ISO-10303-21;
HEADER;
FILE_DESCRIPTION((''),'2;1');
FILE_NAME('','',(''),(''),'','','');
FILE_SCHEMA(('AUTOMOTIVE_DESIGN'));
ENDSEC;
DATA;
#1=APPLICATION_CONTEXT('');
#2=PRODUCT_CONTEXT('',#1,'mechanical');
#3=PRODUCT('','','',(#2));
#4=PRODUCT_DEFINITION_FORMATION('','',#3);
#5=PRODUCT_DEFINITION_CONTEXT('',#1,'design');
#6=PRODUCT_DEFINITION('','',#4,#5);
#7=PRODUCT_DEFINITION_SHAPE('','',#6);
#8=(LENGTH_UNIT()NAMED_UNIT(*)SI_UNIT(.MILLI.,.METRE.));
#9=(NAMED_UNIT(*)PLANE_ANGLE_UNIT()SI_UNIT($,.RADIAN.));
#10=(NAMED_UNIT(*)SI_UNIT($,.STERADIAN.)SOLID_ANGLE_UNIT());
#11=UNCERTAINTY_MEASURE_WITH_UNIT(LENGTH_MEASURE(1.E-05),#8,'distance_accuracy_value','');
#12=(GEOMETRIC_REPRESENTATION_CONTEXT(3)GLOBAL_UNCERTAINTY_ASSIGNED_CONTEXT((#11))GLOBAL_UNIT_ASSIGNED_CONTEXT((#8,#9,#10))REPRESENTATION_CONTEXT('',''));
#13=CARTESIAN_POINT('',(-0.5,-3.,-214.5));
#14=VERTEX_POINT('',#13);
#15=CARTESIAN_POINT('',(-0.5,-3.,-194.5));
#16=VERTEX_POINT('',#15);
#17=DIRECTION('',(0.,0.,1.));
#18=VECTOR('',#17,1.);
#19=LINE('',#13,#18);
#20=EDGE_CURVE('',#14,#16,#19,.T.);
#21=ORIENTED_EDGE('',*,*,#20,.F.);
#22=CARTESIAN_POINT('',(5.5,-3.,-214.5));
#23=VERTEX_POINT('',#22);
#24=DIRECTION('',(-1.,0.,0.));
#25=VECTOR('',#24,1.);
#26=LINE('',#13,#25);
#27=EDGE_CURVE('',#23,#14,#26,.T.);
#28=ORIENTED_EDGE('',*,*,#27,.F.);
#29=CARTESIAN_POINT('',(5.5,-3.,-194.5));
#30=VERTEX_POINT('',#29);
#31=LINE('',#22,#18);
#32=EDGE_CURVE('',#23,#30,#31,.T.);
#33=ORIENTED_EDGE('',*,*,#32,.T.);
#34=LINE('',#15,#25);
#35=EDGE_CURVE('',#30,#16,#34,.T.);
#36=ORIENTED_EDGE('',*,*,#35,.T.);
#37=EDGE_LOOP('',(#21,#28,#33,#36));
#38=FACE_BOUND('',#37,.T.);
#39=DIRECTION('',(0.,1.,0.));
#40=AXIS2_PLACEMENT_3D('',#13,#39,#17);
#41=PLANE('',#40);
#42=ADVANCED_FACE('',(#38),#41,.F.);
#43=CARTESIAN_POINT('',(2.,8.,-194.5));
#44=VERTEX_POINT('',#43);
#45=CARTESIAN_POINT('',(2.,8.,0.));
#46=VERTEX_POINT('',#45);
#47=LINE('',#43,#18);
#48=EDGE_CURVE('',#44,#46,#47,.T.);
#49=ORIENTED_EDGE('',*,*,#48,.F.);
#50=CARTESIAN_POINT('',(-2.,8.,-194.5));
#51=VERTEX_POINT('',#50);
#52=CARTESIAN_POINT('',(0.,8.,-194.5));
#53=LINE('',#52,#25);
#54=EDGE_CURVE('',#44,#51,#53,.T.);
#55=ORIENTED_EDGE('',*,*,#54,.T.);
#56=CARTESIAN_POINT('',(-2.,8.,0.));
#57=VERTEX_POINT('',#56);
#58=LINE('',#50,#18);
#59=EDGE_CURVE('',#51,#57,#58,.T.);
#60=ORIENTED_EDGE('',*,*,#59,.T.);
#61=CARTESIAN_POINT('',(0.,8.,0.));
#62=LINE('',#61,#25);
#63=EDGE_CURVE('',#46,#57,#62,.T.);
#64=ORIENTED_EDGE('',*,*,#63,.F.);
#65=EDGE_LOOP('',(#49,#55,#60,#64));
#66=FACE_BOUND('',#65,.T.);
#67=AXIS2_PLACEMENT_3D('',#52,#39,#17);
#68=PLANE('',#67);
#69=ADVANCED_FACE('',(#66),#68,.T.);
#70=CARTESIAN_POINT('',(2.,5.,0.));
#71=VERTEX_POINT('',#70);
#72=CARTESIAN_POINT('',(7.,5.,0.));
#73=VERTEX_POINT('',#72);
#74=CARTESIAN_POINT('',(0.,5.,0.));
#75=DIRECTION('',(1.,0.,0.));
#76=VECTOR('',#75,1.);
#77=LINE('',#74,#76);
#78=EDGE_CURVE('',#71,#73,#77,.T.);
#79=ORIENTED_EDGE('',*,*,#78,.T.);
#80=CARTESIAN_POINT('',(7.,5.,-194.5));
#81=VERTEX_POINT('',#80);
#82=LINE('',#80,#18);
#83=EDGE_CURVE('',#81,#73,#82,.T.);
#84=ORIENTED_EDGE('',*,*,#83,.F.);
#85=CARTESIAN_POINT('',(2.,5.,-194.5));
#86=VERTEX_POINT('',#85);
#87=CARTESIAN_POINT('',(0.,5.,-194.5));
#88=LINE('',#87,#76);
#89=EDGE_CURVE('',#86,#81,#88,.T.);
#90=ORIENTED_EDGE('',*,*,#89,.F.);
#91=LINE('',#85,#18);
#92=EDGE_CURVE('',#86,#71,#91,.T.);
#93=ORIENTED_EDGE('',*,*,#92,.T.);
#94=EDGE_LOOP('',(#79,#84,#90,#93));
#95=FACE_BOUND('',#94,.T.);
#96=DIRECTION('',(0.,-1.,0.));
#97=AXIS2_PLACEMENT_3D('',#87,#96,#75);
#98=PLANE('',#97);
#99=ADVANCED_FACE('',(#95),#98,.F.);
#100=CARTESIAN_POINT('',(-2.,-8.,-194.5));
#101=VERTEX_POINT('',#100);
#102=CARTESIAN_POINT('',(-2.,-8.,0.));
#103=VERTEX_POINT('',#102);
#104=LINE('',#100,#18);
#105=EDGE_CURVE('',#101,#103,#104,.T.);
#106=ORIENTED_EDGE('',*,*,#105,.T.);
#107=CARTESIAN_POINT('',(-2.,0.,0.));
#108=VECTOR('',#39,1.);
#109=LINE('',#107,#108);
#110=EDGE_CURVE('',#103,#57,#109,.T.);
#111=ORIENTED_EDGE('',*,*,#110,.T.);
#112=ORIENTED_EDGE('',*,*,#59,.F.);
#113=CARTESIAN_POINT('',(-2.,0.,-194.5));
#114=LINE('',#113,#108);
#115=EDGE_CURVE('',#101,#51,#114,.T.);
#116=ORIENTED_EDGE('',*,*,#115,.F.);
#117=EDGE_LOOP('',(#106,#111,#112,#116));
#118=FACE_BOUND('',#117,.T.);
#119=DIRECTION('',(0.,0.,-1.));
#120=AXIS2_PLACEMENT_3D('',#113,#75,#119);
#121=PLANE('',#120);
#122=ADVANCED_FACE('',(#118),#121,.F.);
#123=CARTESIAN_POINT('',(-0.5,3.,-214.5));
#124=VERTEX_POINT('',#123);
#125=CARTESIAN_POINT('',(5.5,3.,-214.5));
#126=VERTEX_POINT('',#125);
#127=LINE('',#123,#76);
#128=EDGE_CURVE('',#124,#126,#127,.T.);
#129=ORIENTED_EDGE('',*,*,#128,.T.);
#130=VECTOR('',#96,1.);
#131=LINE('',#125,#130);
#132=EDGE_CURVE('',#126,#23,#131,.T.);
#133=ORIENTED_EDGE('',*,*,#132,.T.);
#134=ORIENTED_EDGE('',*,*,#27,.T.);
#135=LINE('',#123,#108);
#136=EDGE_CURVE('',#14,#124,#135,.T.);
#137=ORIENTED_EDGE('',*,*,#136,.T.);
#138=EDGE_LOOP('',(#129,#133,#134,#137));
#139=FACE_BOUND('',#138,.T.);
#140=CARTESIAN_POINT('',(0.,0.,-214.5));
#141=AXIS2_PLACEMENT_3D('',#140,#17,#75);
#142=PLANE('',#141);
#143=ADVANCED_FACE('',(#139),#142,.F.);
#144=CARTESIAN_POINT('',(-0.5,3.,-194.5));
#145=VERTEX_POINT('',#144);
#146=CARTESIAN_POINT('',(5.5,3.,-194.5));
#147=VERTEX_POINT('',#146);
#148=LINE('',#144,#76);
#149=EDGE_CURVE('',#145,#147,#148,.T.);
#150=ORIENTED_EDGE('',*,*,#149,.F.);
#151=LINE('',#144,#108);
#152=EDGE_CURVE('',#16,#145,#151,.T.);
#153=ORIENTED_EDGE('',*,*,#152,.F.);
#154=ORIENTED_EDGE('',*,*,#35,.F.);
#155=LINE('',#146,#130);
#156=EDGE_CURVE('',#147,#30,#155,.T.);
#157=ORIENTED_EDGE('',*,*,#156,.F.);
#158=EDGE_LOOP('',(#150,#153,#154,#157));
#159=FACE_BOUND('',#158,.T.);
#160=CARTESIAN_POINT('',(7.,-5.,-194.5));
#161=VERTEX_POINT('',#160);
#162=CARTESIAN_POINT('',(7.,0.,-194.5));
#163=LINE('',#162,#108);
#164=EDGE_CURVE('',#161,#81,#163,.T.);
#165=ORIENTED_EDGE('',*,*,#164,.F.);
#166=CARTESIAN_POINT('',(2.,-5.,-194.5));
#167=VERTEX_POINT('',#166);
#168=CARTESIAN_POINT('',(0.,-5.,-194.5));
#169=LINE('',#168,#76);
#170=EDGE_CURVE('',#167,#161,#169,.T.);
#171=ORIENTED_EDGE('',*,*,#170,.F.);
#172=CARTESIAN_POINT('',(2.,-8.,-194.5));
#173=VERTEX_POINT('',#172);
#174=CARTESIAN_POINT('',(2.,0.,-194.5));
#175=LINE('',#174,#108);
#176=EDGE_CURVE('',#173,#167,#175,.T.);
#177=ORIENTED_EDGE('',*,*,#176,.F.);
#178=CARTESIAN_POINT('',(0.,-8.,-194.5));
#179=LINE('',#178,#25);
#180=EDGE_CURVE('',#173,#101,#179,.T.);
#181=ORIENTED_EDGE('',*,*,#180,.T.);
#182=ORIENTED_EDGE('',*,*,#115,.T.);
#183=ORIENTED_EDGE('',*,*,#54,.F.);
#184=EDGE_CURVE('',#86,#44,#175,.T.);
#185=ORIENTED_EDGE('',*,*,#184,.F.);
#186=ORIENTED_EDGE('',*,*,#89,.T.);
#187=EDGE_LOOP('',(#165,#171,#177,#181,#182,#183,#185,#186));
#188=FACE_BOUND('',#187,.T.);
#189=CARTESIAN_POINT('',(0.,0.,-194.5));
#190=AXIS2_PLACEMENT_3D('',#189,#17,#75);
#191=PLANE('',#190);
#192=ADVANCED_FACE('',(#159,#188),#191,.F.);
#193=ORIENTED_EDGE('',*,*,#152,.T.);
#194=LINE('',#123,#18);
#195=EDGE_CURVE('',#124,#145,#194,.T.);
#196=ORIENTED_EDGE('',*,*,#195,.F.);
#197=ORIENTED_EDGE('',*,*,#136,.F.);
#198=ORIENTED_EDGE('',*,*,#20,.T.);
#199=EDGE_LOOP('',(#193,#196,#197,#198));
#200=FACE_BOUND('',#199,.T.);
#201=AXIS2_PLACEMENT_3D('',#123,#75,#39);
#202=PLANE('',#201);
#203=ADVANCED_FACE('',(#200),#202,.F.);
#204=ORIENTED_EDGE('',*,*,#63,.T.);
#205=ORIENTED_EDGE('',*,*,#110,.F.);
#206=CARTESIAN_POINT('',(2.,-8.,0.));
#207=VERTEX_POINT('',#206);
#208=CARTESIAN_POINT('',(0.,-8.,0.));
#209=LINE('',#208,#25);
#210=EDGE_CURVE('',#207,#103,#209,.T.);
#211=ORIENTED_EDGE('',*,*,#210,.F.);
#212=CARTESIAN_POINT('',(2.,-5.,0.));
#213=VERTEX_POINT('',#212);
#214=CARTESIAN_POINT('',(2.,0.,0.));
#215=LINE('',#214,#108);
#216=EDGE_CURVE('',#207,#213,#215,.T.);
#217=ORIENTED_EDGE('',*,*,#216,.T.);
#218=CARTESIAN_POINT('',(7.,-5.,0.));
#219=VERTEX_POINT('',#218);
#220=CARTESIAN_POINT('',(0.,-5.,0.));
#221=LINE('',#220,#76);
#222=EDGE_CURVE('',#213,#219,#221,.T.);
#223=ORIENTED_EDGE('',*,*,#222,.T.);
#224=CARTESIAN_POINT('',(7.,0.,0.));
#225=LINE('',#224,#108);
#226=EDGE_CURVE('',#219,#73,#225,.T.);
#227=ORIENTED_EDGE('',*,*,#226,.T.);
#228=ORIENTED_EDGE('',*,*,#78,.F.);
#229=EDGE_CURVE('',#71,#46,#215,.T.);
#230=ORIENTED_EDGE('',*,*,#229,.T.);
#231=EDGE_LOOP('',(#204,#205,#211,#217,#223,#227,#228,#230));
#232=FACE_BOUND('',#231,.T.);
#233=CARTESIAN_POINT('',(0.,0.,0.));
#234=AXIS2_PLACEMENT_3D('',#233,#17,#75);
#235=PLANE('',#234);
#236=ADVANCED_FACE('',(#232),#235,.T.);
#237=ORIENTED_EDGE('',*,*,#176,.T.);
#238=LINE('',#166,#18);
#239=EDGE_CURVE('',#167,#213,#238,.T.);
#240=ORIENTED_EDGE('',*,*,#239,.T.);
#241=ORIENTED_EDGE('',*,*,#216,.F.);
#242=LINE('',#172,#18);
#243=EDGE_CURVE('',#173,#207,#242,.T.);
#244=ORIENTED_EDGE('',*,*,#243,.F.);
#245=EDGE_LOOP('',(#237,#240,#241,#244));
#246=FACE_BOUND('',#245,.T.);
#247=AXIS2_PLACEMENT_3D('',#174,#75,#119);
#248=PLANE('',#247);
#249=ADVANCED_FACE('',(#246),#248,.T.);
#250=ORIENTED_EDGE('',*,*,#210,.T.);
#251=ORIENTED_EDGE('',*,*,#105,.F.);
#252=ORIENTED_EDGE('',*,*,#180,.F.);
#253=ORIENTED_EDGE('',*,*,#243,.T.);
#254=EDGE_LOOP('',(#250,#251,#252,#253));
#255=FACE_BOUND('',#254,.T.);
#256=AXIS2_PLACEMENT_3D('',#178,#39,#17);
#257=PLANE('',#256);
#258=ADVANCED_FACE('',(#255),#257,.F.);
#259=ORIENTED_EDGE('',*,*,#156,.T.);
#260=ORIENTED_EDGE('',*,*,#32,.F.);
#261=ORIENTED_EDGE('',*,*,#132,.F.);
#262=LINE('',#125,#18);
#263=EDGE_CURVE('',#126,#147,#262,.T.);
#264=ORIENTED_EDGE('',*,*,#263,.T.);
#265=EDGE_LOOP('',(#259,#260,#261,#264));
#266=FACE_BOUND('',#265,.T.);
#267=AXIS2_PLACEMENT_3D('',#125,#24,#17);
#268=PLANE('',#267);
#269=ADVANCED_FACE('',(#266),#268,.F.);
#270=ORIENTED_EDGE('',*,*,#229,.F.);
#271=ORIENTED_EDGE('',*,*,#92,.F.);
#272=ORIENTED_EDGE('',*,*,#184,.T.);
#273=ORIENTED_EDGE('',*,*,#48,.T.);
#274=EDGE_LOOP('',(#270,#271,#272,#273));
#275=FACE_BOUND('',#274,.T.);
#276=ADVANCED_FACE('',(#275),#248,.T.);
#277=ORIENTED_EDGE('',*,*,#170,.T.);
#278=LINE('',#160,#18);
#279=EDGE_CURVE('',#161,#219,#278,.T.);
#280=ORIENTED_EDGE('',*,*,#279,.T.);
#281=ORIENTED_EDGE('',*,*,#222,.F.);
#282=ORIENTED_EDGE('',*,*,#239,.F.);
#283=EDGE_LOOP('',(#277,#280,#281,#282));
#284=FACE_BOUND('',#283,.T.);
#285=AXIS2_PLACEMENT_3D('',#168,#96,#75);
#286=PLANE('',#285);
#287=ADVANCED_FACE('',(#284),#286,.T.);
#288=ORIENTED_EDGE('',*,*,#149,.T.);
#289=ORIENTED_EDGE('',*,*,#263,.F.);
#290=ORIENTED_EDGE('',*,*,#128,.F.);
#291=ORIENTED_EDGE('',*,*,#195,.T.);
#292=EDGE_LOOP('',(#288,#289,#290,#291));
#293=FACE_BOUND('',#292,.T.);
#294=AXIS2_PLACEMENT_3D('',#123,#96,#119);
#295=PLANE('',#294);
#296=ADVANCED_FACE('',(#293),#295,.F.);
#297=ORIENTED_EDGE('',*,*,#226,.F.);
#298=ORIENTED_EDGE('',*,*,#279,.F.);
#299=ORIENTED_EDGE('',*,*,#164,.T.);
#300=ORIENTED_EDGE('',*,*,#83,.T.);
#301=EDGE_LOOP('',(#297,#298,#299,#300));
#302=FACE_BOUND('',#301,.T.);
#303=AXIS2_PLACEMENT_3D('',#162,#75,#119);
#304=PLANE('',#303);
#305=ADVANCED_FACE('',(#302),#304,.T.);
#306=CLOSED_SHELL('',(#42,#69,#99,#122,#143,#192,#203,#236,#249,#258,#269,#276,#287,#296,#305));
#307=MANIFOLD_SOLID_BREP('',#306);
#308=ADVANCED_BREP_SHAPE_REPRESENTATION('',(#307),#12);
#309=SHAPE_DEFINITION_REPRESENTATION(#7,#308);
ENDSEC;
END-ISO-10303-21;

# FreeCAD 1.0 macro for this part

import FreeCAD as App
import Part
import Sketcher

V = App.Vector
Q = App.Units.Quantity

doc = App.newDocument("Part")
params = doc.addObject("Spreadsheet::Sheet", "Params")
for row, (alias, value) in enumerate([
    ("sketch1_width", "5 mm"),
    ("sketch1_width2", "4 mm"),
    ("sketch1_height", "10 mm"),
    ("sketch1_height2", "3 mm"),
    ("pad1_length", "194.5 mm"),
    ("sketch2_width", "6 mm"),
    ("pad2_length", "20 mm"),
], start=1):
    params.set(f"A{row}", alias)
    params.set(f"B{row}", "=" + value)
    params.setAlias(f"B{row}", alias)

body = doc.addObject("PartDesign::Body", "Body")

sketch1 = body.newObject("Sketcher::SketchObject", "Sketch")
sketch1.AttachmentSupport = (doc.getObject("XY_Plane"), [""])
sketch1.MapMode = "FlatFace"
sketch1.addGeometry(Part.LineSegment(V(2, -5, 0), V(7, -5, 0)), False)
sketch1.addGeometry(Part.LineSegment(V(7, -5, 0), V(7, 5, 0)), False)
sketch1.addGeometry(Part.LineSegment(V(7, 5, 0), V(2, 5, 0)), False)
sketch1.addGeometry(Part.LineSegment(V(2, 5, 0), V(2, 8, 0)), False)
sketch1.addGeometry(Part.LineSegment(V(2, 8, 0), V(-2, 8, 0)), False)
sketch1.addGeometry(Part.LineSegment(V(-2, 8, 0), V(-2, -8, 0)), False)
sketch1.addGeometry(Part.LineSegment(V(-2, -8, 0), V(2, -8, 0)), False)
sketch1.addGeometry(Part.LineSegment(V(2, -8, 0), V(2, -5, 0)), False)
sketch1.addConstraint(Sketcher.Constraint("Coincident", 0, 2, 1, 1))
sketch1.addConstraint(Sketcher.Constraint("Coincident", 1, 2, 2, 1))
sketch1.addConstraint(Sketcher.Constraint("Coincident", 2, 2, 3, 1))
sketch1.addConstraint(Sketcher.Constraint("Coincident", 3, 2, 4, 1))
sketch1.addConstraint(Sketcher.Constraint("Coincident", 4, 2, 5, 1))
sketch1.addConstraint(Sketcher.Constraint("Coincident", 5, 2, 6, 1))
sketch1.addConstraint(Sketcher.Constraint("Coincident", 6, 2, 7, 1))
sketch1.addConstraint(Sketcher.Constraint("Coincident", 7, 2, 0, 1))
sketch1.addConstraint(Sketcher.Constraint("Horizontal", 0))
sketch1.addConstraint(Sketcher.Constraint("Vertical", 1))
sketch1.addConstraint(Sketcher.Constraint("Horizontal", 2))
sketch1.addConstraint(Sketcher.Constraint("Vertical", 3))
sketch1.addConstraint(Sketcher.Constraint("Horizontal", 4))
sketch1.addConstraint(Sketcher.Constraint("Vertical", 5))
sketch1.addConstraint(Sketcher.Constraint("Horizontal", 6))
sketch1.addConstraint(Sketcher.Constraint("Vertical", 7))
sketch1.addConstraint(Sketcher.Constraint("Symmetric", 3, 2, 5, 2, -1, 1))
sketch1.addConstraint(Sketcher.Constraint("Symmetric", 2, 2, 7, 2, -1))
sketch1.addConstraint(Sketcher.Constraint("DistanceX", 0, 1, 0, 2, Q("5 mm")))
sketch1.addConstraint(Sketcher.Constraint("DistanceX", 4, 2, 4, 1, Q("4 mm")))
sketch1.addConstraint(Sketcher.Constraint("DistanceY", 1, 1, 1, 2, Q("10 mm")))
sketch1.addConstraint(Sketcher.Constraint("DistanceY", 3, 1, 3, 2, Q("3 mm")))
sketch1.setExpression("Constraints[18]", "Params.sketch1_width")
sketch1.setExpression("Constraints[19]", "Params.sketch1_width2")
sketch1.setExpression("Constraints[20]", "Params.sketch1_height")
sketch1.setExpression("Constraints[21]", "Params.sketch1_height2")
pad1 = body.newObject("PartDesign::Pad", "Pad")
pad1.Profile = sketch1
pad1.setExpression("Length", "Params.pad1_length")
pad1.Reversed = True

sketch2 = body.newObject("Sketcher::SketchObject", "Sketch001")
sketch2.AttachmentSupport = (doc.getObject("XY_Plane"), [""])
sketch2.MapMode = "FlatFace"
sketch2.AttachmentOffset = App.Placement(V(0, 0, -194.5), App.Rotation())
sketch2.addGeometry(Part.LineSegment(V(-0.5, -3, 0), V(-0.5, 3, 0)), False)
sketch2.addGeometry(Part.LineSegment(V(-0.5, 3, 0), V(5.5, 3, 0)), False)
sketch2.addGeometry(Part.LineSegment(V(5.5, 3, 0), V(5.5, -3, 0)), False)
sketch2.addGeometry(Part.LineSegment(V(5.5, -3, 0), V(-0.5, -3, 0)), False)
sketch2.addConstraint(Sketcher.Constraint("Coincident", 0, 2, 1, 1))
sketch2.addConstraint(Sketcher.Constraint("Coincident", 1, 2, 2, 1))
sketch2.addConstraint(Sketcher.Constraint("Coincident", 2, 2, 3, 1))
sketch2.addConstraint(Sketcher.Constraint("Coincident", 3, 2, 0, 1))
sketch2.addConstraint(Sketcher.Constraint("Vertical", 0))
sketch2.addConstraint(Sketcher.Constraint("Horizontal", 1))
sketch2.addConstraint(Sketcher.Constraint("Vertical", 2))
sketch2.addConstraint(Sketcher.Constraint("Horizontal", 3))
sketch2.addConstraint(Sketcher.Constraint("Equal", 3, 0))
sketch2.addConstraint(Sketcher.Constraint("DistanceX", 1, 1, 1, 2, Q("6 mm")))
sketch2.addConstraint(Sketcher.Constraint("DistanceY", -1, 1, 0, 2, Q("3 mm")))
sketch2.addConstraint(Sketcher.Constraint("DistanceX", 0, 2, -1, 1, Q("0.5 mm")))
sketch2.setExpression("Constraints[9]", "Params.sketch2_width")
pad2 = body.newObject("PartDesign::Pad", "Pad001")
pad2.Profile = sketch2
pad2.setExpression("Length", "Params.pad2_length")
pad2.Reversed = True

doc.recompute()
